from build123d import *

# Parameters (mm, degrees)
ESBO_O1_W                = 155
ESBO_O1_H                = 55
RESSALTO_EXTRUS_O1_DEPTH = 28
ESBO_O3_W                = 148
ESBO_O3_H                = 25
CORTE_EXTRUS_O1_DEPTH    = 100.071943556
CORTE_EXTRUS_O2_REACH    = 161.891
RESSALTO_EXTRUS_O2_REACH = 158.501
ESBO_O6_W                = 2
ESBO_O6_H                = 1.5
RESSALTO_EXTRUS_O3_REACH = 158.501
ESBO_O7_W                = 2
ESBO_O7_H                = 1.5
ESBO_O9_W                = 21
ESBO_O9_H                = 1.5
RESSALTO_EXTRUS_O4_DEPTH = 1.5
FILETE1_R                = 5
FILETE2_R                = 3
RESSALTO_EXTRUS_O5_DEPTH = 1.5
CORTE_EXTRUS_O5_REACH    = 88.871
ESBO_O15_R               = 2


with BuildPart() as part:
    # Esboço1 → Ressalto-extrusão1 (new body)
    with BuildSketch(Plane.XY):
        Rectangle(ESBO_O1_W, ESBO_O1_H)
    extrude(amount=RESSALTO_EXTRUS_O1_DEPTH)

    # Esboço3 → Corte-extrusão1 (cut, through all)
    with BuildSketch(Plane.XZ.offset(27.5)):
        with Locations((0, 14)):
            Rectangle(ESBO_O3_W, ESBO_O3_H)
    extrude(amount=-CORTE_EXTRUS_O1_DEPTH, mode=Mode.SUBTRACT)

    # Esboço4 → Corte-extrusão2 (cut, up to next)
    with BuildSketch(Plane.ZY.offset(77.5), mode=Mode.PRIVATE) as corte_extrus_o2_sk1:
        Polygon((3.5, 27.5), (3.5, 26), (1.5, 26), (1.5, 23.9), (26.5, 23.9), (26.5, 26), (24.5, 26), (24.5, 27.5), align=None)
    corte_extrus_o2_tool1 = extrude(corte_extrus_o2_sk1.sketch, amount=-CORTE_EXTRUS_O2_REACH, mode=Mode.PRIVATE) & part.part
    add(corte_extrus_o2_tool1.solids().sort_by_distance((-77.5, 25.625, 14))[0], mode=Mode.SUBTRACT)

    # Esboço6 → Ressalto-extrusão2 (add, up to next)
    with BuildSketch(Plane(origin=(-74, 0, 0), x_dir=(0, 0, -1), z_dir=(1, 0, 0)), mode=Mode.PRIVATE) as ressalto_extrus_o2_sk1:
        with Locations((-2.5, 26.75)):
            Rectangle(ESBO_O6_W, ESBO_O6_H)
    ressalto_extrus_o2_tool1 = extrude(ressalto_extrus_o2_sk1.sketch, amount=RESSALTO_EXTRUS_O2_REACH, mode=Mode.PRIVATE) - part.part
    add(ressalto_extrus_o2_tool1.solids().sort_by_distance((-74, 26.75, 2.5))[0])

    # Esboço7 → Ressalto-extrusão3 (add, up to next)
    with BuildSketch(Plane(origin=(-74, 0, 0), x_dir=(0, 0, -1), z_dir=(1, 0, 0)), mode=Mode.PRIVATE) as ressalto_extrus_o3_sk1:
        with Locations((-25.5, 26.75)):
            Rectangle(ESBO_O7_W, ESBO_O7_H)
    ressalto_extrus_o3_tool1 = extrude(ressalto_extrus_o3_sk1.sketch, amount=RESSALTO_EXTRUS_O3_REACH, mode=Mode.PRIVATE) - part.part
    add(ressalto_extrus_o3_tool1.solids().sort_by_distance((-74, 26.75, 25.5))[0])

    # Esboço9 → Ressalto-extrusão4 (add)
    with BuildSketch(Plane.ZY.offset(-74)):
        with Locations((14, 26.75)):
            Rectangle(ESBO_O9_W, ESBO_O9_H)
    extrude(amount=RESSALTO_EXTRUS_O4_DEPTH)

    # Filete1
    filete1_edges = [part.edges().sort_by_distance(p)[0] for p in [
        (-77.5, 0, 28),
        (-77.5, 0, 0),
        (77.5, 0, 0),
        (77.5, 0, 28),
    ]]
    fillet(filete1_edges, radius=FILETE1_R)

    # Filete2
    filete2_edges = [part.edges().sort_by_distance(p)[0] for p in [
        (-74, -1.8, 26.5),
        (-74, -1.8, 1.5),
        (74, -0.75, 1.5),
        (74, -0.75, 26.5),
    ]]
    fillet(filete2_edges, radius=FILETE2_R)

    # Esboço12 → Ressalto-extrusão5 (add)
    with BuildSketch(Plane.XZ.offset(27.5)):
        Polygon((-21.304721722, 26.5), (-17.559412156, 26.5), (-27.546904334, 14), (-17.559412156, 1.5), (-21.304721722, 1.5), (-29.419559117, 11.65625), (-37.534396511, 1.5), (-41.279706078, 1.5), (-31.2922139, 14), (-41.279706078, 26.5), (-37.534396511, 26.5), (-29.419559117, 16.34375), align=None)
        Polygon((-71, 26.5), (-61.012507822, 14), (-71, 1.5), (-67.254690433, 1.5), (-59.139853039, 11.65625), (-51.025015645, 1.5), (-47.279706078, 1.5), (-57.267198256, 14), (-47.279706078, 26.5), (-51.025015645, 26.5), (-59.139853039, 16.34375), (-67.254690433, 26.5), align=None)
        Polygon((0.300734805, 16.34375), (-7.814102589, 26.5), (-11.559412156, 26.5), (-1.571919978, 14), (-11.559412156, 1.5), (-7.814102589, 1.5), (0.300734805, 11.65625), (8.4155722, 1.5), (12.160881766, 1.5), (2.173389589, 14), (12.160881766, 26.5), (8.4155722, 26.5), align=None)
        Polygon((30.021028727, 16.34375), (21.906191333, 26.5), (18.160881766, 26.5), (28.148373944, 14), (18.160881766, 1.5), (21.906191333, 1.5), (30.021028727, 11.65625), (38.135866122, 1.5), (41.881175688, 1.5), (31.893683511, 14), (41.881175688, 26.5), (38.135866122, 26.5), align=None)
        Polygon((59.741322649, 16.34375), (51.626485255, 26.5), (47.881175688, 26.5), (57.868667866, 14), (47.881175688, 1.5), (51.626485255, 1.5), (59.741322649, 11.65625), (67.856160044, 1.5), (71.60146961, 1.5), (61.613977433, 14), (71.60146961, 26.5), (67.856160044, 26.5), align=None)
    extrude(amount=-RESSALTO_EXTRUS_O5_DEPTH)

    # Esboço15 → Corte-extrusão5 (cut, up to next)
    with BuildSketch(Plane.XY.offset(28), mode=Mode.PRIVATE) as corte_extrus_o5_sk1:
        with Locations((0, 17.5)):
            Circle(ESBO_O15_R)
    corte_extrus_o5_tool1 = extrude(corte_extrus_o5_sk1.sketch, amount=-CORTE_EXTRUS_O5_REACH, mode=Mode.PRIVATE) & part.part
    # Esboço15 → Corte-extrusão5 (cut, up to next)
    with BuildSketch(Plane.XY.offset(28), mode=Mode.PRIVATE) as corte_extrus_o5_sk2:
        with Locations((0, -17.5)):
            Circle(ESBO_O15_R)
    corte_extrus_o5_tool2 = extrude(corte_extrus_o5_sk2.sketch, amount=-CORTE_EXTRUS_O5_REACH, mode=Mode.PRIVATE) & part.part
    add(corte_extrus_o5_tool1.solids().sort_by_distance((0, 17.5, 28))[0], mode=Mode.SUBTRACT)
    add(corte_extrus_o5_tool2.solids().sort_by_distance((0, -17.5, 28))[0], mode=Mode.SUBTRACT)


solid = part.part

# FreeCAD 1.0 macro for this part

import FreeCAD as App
import Part
import Sketcher
from FreeCAD import Vector
Q = App.Units.Quantity


def edges_at(feature, points):
    """Names of the edges that pass closest to the given points."""
    edges = feature.Shape.Edges
    near = lambda p: min(range(len(edges)), key=lambda i: edges[i].distToShape(Part.Vertex(*p))[0])
    return sorted({f"Edge{near(p) + 1}" for p in points})


def add_polygon(sketch, points):
    """Adds a closed chain of lines whose ends are joined by coincident constraints."""
    first, n = sketch.GeometryCount, len(points)
    for a, b in zip(points, points[1:] + points[:1]):
        sketch.addGeometry(Part.LineSegment(App.Vector(*a, 0), App.Vector(*b, 0)), False)
    for i in range(n):
        sketch.addConstraint(Sketcher.Constraint("Coincident", first + i, 2, first + (i + 1) % n, 1))

doc = App.newDocument("Part")
body = doc.addObject("PartDesign::Body", "Body")

sketch1 = doc.addObject("Sketcher::SketchObject", "Sketch")
body.addObject(sketch1)
sketch1.AttachmentSupport = (doc.XY_Plane, [""])
sketch1.MapMode = "FlatFace"
add_polygon(sketch1, [(-78, 28), (-78, -28), (78, -28), (78, 28)])
sketch1.addConstraint(Sketcher.Constraint("Vertical", 0))
sketch1.addConstraint(Sketcher.Constraint("Horizontal", 1))
sketch1.addConstraint(Sketcher.Constraint("Vertical", 2))
sketch1.addConstraint(Sketcher.Constraint("Horizontal", 3))
sketch1.addConstraint(Sketcher.Constraint("Symmetric", 0, 2, 2, 2, -1, 1))
sketch1.addConstraint(Sketcher.Constraint("DistanceX", 1, 1, 1, 2, Q("155 mm")))
sketch1.addConstraint(Sketcher.Constraint("DistanceY", 0, 2, 0, 1, Q("55 mm")))
pad1 = doc.addObject("PartDesign::Pad", "Pad")
body.addObject(pad1)
pad1.Profile = sketch1
pad1.Length = 28

sketch2 = doc.addObject("Sketcher::SketchObject", "Sketch001")
body.addObject(sketch2)
sketch2.AttachmentSupport = (doc.XZ_Plane, [""])
sketch2.MapMode = "FlatFace"
sketch2.AttachmentOffset = App.Placement(Vector(0, 0, 27.5), App.Rotation())
add_polygon(sketch2, [(-74, 26), (-74, 2), (74, 2), (74, 26)])
sketch2.addConstraint(Sketcher.Constraint("Vertical", 0))
sketch2.addConstraint(Sketcher.Constraint("Horizontal", 1))
sketch2.addConstraint(Sketcher.Constraint("Vertical", 2))
sketch2.addConstraint(Sketcher.Constraint("Horizontal", 3))
sketch2.addConstraint(Sketcher.Constraint("DistanceX", 1, 1, 1, 2, Q("148 mm")))
sketch2.addConstraint(Sketcher.Constraint("DistanceY", 0, 2, 0, 1, Q("25 mm")))
sketch2.addConstraint(Sketcher.Constraint("DistanceX", 0, 2, -1, 1, Q("74 mm")))
sketch2.addConstraint(Sketcher.Constraint("DistanceY", -1, 1, 0, 2, Q("1.5 mm")))
pocket1 = doc.addObject("PartDesign::Pocket", "Pocket")
body.addObject(pocket1)
pocket1.Profile = sketch2
pocket1.Type = "ThroughAll"

sketch3 = doc.addObject("Sketcher::SketchObject", "Sketch002")
body.addObject(sketch3)
sketch3.AttachmentSupport = (doc.YZ_Plane, [""])
sketch3.MapMode = "FlatFace"
sketch3.AttachmentOffset = App.Placement(Vector(0, 0, -77.5), App.Rotation())
add_polygon(sketch3, [(27.5, 3.5), (26, 3.5), (26, 1.5), (23.9, 1.5), (23.9, 26.5), (26, 26.5), (26, 24.5), (27.5, 24.5)])
sketch3.addConstraint(Sketcher.Constraint("Horizontal", 0))
sketch3.addConstraint(Sketcher.Constraint("Vertical", 1))
sketch3.addConstraint(Sketcher.Constraint("Horizontal", 2))
sketch3.addConstraint(Sketcher.Constraint("Vertical", 3))
sketch3.addConstraint(Sketcher.Constraint("Horizontal", 4))
sketch3.addConstraint(Sketcher.Constraint("Vertical", 5))
sketch3.addConstraint(Sketcher.Constraint("Horizontal", 6))
sketch3.addConstraint(Sketcher.Constraint("Vertical", 7))
sketch3.addConstraint(Sketcher.Constraint("Vertical", 1, 2, 4, 2))
sketch3.addConstraint(Sketcher.Constraint("Equal", 1, 5))
sketch3.addConstraint(Sketcher.Constraint("DistanceY", 1, 2, 1, 1, Q("2 mm")))
sketch3.addConstraint(Sketcher.Constraint("DistanceY", 3, 1, 3, 2, Q("25 mm")))
sketch3.addConstraint(Sketcher.Constraint("DistanceX", 0, 2, 0, 1, Q("1.5 mm")))
sketch3.addConstraint(Sketcher.Constraint("DistanceX", 2, 2, 2, 1, Q("2.1 mm")))
sketch3.addConstraint(Sketcher.Constraint("DistanceX", -1, 1, 0, 2, Q("26 mm")))
sketch3.addConstraint(Sketcher.Constraint("DistanceY", -1, 1, 0, 2, Q("3.5 mm")))
pocket2 = doc.addObject("PartDesign::Pocket", "Pocket001")
body.addObject(pocket2)
pocket2.Profile = sketch3
pocket2.Type = "UpToFirst"
pocket2.Reversed = True

sketch4 = doc.addObject("Sketcher::SketchObject", "Sketch003")
body.addObject(sketch4)
sketch4.AttachmentSupport = (doc.YZ_Plane, [""])
sketch4.MapMode = "FlatFace"
sketch4.AttachmentOffset = App.Placement(Vector(0, 0, -74), App.Rotation())
add_polygon(sketch4, [(27.5, 3.5), (26, 3.5), (26, 1.5), (27.5, 1.5)])
sketch4.addConstraint(Sketcher.Constraint("Horizontal", 0))
sketch4.addConstraint(Sketcher.Constraint("Vertical", 1))
sketch4.addConstraint(Sketcher.Constraint("Horizontal", 2))
sketch4.addConstraint(Sketcher.Constraint("Vertical", 3))
sketch4.addConstraint(Sketcher.Constraint("DistanceY", 1, 2, 1, 1, Q("2 mm")))
sketch4.addConstraint(Sketcher.Constraint("DistanceX", 0, 2, 0, 1, Q("1.5 mm")))
sketch4.addConstraint(Sketcher.Constraint("DistanceX", -1, 1, 0, 2, Q("26 mm")))
sketch4.addConstraint(Sketcher.Constraint("DistanceY", -1, 1, 0, 2, Q("3.5 mm")))
pad2 = doc.addObject("PartDesign::Pad", "Pad001")
body.addObject(pad2)
pad2.Profile = sketch4
pad2.Type = "UpToFirst"

sketch5 = doc.addObject("Sketcher::SketchObject", "Sketch004")
body.addObject(sketch5)
sketch5.AttachmentSupport = (doc.YZ_Plane, [""])
sketch5.MapMode = "FlatFace"
sketch5.AttachmentOffset = App.Placement(Vector(0, 0, -74), App.Rotation())
add_polygon(sketch5, [(27.5, 26.5), (26, 26.5), (26, 24.5), (27.5, 24.5)])
sketch5.addConstraint(Sketcher.Constraint("Horizontal", 0))
sketch5.addConstraint(Sketcher.Constraint("Vertical", 1))
sketch5.addConstraint(Sketcher.Constraint("Horizontal", 2))
sketch5.addConstraint(Sketcher.Constraint("Vertical", 3))
sketch5.addConstraint(Sketcher.Constraint("DistanceY", 1, 2, 1, 1, Q("2 mm")))
sketch5.addConstraint(Sketcher.Constraint("DistanceX", 0, 2, 0, 1, Q("1.5 mm")))
sketch5.addConstraint(Sketcher.Constraint("DistanceX", -1, 1, 0, 2, Q("26 mm")))
sketch5.addConstraint(Sketcher.Constraint("DistanceY", -1, 1, 0, 2, Q("26.5 mm")))
pad3 = doc.addObject("PartDesign::Pad", "Pad002")
body.addObject(pad3)
pad3.Profile = sketch5
pad3.Type = "UpToFirst"

sketch6 = doc.addObject("Sketcher::SketchObject", "Sketch005")
body.addObject(sketch6)
sketch6.AttachmentSupport = (doc.YZ_Plane, [""])
sketch6.MapMode = "FlatFace"
sketch6.AttachmentOffset = App.Placement(Vector(0, 0, 74), App.Rotation())
add_polygon(sketch6, [(27.5, 3.5), (26, 3.5), (26, 24.5), (27.5, 24.5)])
sketch6.addConstraint(Sketcher.Constraint("Horizontal", 0))
sketch6.addConstraint(Sketcher.Constraint("Vertical", 1))
sketch6.addConstraint(Sketcher.Constraint("Horizontal", 2))
sketch6.addConstraint(Sketcher.Constraint("Vertical", 3))
sketch6.addConstraint(Sketcher.Constraint("DistanceY", 1, 1, 1, 2, Q("21 mm")))
sketch6.addConstraint(Sketcher.Constraint("DistanceX", 0, 2, 0, 1, Q("1.5 mm")))
sketch6.addConstraint(Sketcher.Constraint("DistanceX", -1, 1, 0, 2, Q("26 mm")))
sketch6.addConstraint(Sketcher.Constraint("DistanceY", -1, 1, 0, 2, Q("3.5 mm")))
pad4 = doc.addObject("PartDesign::Pad", "Pad003")
body.addObject(pad4)
pad4.Profile = sketch6
pad4.Length = 1.5
pad4.Reversed = True
doc.recompute()

fillet = doc.addObject("PartDesign::Fillet", "Fillet")
body.addObject(fillet)
fillet.Base = (pad4, edges_at(pad4, [
    (-77.5, 0, 28),
    (-77.5, 0, 0),
    (77.5, 0, 0),
    (77.5, 0, 28),
]))
fillet.Radius = 5
doc.recompute()

fillet2 = doc.addObject("PartDesign::Fillet", "Fillet001")
body.addObject(fillet2)
fillet2.Base = (fillet, edges_at(fillet, [
    (-74, -1.8, 26.5),
    (-74, -1.8, 1.5),
    (74, -0.75, 1.5),
    (74, -0.75, 26.5),
]))
fillet2.Radius = 3

sketch7 = doc.addObject("Sketcher::SketchObject", "Sketch006")
body.addObject(sketch7)
sketch7.AttachmentSupport = (doc.XZ_Plane, [""])
sketch7.MapMode = "FlatFace"
sketch7.AttachmentOffset = App.Placement(Vector(0, 0, 27.5), App.Rotation())
add_polygon(sketch7, [(-17.6, 26.5), (-21.3, 26.5), (-29.4, 16.3), (-37.5, 26.5), (-41.3, 26.5), (-31.3, 14), (-41.3, 1.5), (-37.5, 1.5), (-29.4, 11.7), (-21.3, 1.5), (-17.6, 1.5), (-27.5, 14)])
add_polygon(sketch7, [(-71, 26.5), (-61, 14), (-71, 1.5), (-67.3, 1.5), (-59.1, 11.7), (-51, 1.5), (-47.3, 1.5), (-57.3, 14), (-47.3, 26.5), (-51, 26.5), (-59.1, 16.3), (-67.3, 26.5)])
add_polygon(sketch7, [(0.3, 16.3), (-7.8, 26.5), (-11.6, 26.5), (-1.6, 14), (-11.6, 1.5), (-7.8, 1.5), (0.3, 11.7), (8.4, 1.5), (12.2, 1.5), (2.2, 14), (12.2, 26.5), (8.4, 26.5)])
add_polygon(sketch7, [(30, 16.3), (21.9, 26.5), (18.2, 26.5), (28.1, 14), (18.2, 1.5), (21.9, 1.5), (30, 11.7), (38.1, 1.5), (41.9, 1.5), (31.9, 14), (41.9, 26.5), (38.1, 26.5)])
add_polygon(sketch7, [(59.7, 16.3), (51.6, 26.5), (47.9, 26.5), (57.9, 14), (47.9, 1.5), (51.6, 1.5), (59.7, 11.7), (67.9, 1.5), (71.6, 1.5), (61.6, 14), (71.6, 26.5), (67.9, 26.5)])
sketch7.addConstraint(Sketcher.Constraint("Horizontal", 0))
sketch7.addConstraint(Sketcher.Constraint("Horizontal", 3))
sketch7.addConstraint(Sketcher.Constraint("Horizontal", 6))
sketch7.addConstraint(Sketcher.Constraint("Horizontal", 9))
sketch7.addConstraint(Sketcher.Constraint("Horizontal", 14))
sketch7.addConstraint(Sketcher.Constraint("Horizontal", 17))
sketch7.addConstraint(Sketcher.Constraint("Horizontal", 20))
sketch7.addConstraint(Sketcher.Constraint("Horizontal", 23))
sketch7.addConstraint(Sketcher.Constraint("Horizontal", 25))
sketch7.addConstraint(Sketcher.Constraint("Horizontal", 28))
sketch7.addConstraint(Sketcher.Constraint("Horizontal", 31))
sketch7.addConstraint(Sketcher.Constraint("Horizontal", 34))
sketch7.addConstraint(Sketcher.Constraint("Horizontal", 37))
sketch7.addConstraint(Sketcher.Constraint("Horizontal", 40))
sketch7.addConstraint(Sketcher.Constraint("Horizontal", 43))
sketch7.addConstraint(Sketcher.Constraint("Horizontal", 46))
sketch7.addConstraint(Sketcher.Constraint("Horizontal", 49))
sketch7.addConstraint(Sketcher.Constraint("Horizontal", 52))
sketch7.addConstraint(Sketcher.Constraint("Horizontal", 55))
sketch7.addConstraint(Sketcher.Constraint("Horizontal", 58))
sketch7.addConstraint(Sketcher.Constraint("Parallel", 2, 4))
sketch7.addConstraint(Sketcher.Constraint("Parallel", 1, 5))
sketch7.addConstraint(Sketcher.Constraint("Parallel", 5, 7))
sketch7.addConstraint(Sketcher.Constraint("Parallel", 4, 8))
sketch7.addConstraint(Sketcher.Constraint("Parallel", 8, 10))
sketch7.addConstraint(Sketcher.Constraint("Parallel", 7, 11))
sketch7.addConstraint(Sketcher.Constraint("Parallel", 10, 12))
sketch7.addConstraint(Sketcher.Constraint("Parallel", 11, 13))
sketch7.addConstraint(Sketcher.Constraint("Parallel", 13, 15))
sketch7.addConstraint(Sketcher.Constraint("Parallel", 12, 16))
sketch7.addConstraint(Sketcher.Constraint("Parallel", 16, 18))
sketch7.addConstraint(Sketcher.Constraint("Parallel", 15, 19))
sketch7.addConstraint(Sketcher.Constraint("Parallel", 19, 21))
sketch7.addConstraint(Sketcher.Constraint("Parallel", 18, 22))
sketch7.addConstraint(Sketcher.Constraint("Parallel", 22, 24))
sketch7.addConstraint(Sketcher.Constraint("Parallel", 24, 26))
sketch7.addConstraint(Sketcher.Constraint("Parallel", 21, 27))
sketch7.addConstraint(Sketcher.Constraint("Parallel", 27, 29))
sketch7.addConstraint(Sketcher.Constraint("Parallel", 26, 30))
sketch7.addConstraint(Sketcher.Constraint("Parallel", 30, 32))
sketch7.addConstraint(Sketcher.Constraint("Parallel", 29, 33))
sketch7.addConstraint(Sketcher.Constraint("Parallel", 33, 35))
sketch7.addConstraint(Sketcher.Constraint("Parallel", 32, 36))
sketch7.addConstraint(Sketcher.Constraint("Parallel", 36, 38))
sketch7.addConstraint(Sketcher.Constraint("Parallel", 35, 39))
sketch7.addConstraint(Sketcher.Constraint("Parallel", 39, 41))
sketch7.addConstraint(Sketcher.Constraint("Parallel", 38, 42))
sketch7.addConstraint(Sketcher.Constraint("Parallel", 42, 44))
sketch7.addConstraint(Sketcher.Constraint("Parallel", 41, 45))
sketch7.addConstraint(Sketcher.Constraint("Parallel", 45, 47))
sketch7.addConstraint(Sketcher.Constraint("Parallel", 44, 48))
sketch7.addConstraint(Sketcher.Constraint("Parallel", 48, 50))
sketch7.addConstraint(Sketcher.Constraint("Parallel", 47, 51))
sketch7.addConstraint(Sketcher.Constraint("Parallel", 51, 53))
sketch7.addConstraint(Sketcher.Constraint("Parallel", 50, 54))
sketch7.addConstraint(Sketcher.Constraint("Parallel", 54, 56))
sketch7.addConstraint(Sketcher.Constraint("Parallel", 53, 57))
sketch7.addConstraint(Sketcher.Constraint("Parallel", 57, 59))
sketch7.addConstraint(Sketcher.Constraint("Horizontal", 0, 2, 2, 2))
sketch7.addConstraint(Sketcher.Constraint("Horizontal", 6, 2, 8, 2))
sketch7.addConstraint(Sketcher.Constraint("Horizontal", 4, 2, 10, 2))
sketch7.addConstraint(Sketcher.Constraint("Horizontal", 10, 2, 12, 2))
sketch7.addConstraint(Sketcher.Constraint("Horizontal", 9, 2, 13, 2))
sketch7.addConstraint(Sketcher.Constraint("Horizontal", 7, 2, 15, 2))
sketch7.addConstraint(Sketcher.Constraint("Horizontal", 14, 2, 16, 2))
sketch7.addConstraint(Sketcher.Constraint("Horizontal", 12, 2, 18, 2))
sketch7.addConstraint(Sketcher.Constraint("Horizontal", 11, 2, 19, 2))
sketch7.addConstraint(Sketcher.Constraint("Horizontal", 1, 2, 21, 2))
sketch7.addConstraint(Sketcher.Constraint("Horizontal", 20, 2, 22, 2))
sketch7.addConstraint(Sketcher.Constraint("Horizontal", 23, 2, 24, 2))
sketch7.addConstraint(Sketcher.Constraint("Horizontal", 18, 2, 26, 2))
sketch7.addConstraint(Sketcher.Constraint("Horizontal", 17, 2, 27, 2))
sketch7.addConstraint(Sketcher.Constraint("Horizontal", 15, 2, 29, 2))
sketch7.addConstraint(Sketcher.Constraint("Horizontal", 28, 2, 30, 2))
sketch7.addConstraint(Sketcher.Constraint("Horizontal", 26, 2, 32, 2))
sketch7.addConstraint(Sketcher.Constraint("Horizontal", 25, 2, 33, 2))
sketch7.addConstraint(Sketcher.Constraint("Horizontal", 21, 2, 35, 2))
sketch7.addConstraint(Sketcher.Constraint("Horizontal", 34, 2, 36, 2))
sketch7.addConstraint(Sketcher.Constraint("Horizontal", 32, 2, 38, 2))
sketch7.addConstraint(Sketcher.Constraint("Horizontal", 31, 2, 39, 2))
sketch7.addConstraint(Sketcher.Constraint("Horizontal", 29, 2, 41, 2))
sketch7.addConstraint(Sketcher.Constraint("Horizontal", 40, 2, 42, 2))
sketch7.addConstraint(Sketcher.Constraint("Horizontal", 38, 2, 44, 2))
sketch7.addConstraint(Sketcher.Constraint("Horizontal", 37, 2, 45, 2))
sketch7.addConstraint(Sketcher.Constraint("Horizontal", 35, 2, 47, 2))
sketch7.addConstraint(Sketcher.Constraint("Horizontal", 46, 2, 48, 2))
sketch7.addConstraint(Sketcher.Constraint("Horizontal", 44, 2, 50, 2))
sketch7.addConstraint(Sketcher.Constraint("Horizontal", 43, 2, 51, 2))
sketch7.addConstraint(Sketcher.Constraint("Horizontal", 41, 2, 53, 2))
sketch7.addConstraint(Sketcher.Constraint("Horizontal", 52, 2, 54, 2))
sketch7.addConstraint(Sketcher.Constraint("Horizontal", 50, 2, 56, 2))
sketch7.addConstraint(Sketcher.Constraint("Horizontal", 49, 2, 57, 2))
sketch7.addConstraint(Sketcher.Constraint("Horizontal", 47, 2, 59, 2))
sketch7.addConstraint(Sketcher.Constraint("Vertical", 3, 2, 5, 2))
sketch7.addConstraint(Sketcher.Constraint("Vertical", 2, 2, 6, 2))
sketch7.addConstraint(Sketcher.Constraint("Vertical", 1, 2, 7, 2))
sketch7.addConstraint(Sketcher.Constraint("Vertical", 0, 2, 8, 2))
sketch7.addConstraint(Sketcher.Constraint("Vertical", 16, 2, 20, 2))
sketch7.addConstraint(Sketcher.Constraint("Vertical", 24, 2, 28, 2))
sketch7.addConstraint(Sketcher.Constraint("Vertical", 36, 2, 40, 2))
sketch7.addConstraint(Sketcher.Constraint("Vertical", 48, 2, 52, 2))
sketch7.addConstraint(Sketcher.Constraint("Equal", 0, 3))
sketch7.addConstraint(Sketcher.Constraint("Equal", 9, 14))
sketch7.addConstraint(Sketcher.Constraint("Equal", 14, 17))
sketch7.addConstraint(Sketcher.Constraint("Equal", 23, 25))
sketch7.addConstraint(Sketcher.Constraint("Equal", 28, 31))
sketch7.addConstraint(Sketcher.Constraint("Equal", 34, 37))
sketch7.addConstraint(Sketcher.Constraint("Equal", 40, 43))
sketch7.addConstraint(Sketcher.Constraint("Equal", 46, 49))
sketch7.addConstraint(Sketcher.Constraint("Equal", 52, 55))
sketch7.addConstraint(Sketcher.Constraint("Distance", 1, Q("13 mm")))
sketch7.addConstraint(Sketcher.Constraint("Distance", 4, Q("16 mm")))
sketch7.addConstraint(Sketcher.Constraint("DistanceY", -1, 1, 4, 2, Q("14 mm")))
sketch7.addConstraint(Sketcher.Constraint("DistanceX", 13, 2, -1, 1, Q("71 mm")))
sketch7.addConstraint(Sketcher.Constraint("DistanceY", 5, 2, 3, 2, Q("25 mm")))
sketch7.addConstraint(Sketcher.Constraint("DistanceX", 17, 2, 5, 2, Q("6 mm")))
sketch7.addConstraint(Sketcher.Constraint("DistanceX", 11, 2, 25, 2, Q("6 mm")))
sketch7.addConstraint(Sketcher.Constraint("DistanceX", 33, 2, 37, 2, Q("6 mm")))
sketch7.addConstraint(Sketcher.Constraint("DistanceX", 45, 2, 49, 2, Q("6 mm")))
sketch7.addConstraint(Sketcher.Constraint("DistanceX", 0, 2, 0, 1, Q("3.74531 mm")))
pad5 = doc.addObject("PartDesign::Pad", "Pad004")
body.addObject(pad5)
pad5.Profile = sketch7
pad5.Length = 1.5
pad5.Reversed = True

sketch8 = doc.addObject("Sketcher::SketchObject", "Sketch007")
body.addObject(sketch8)
sketch8.AttachmentSupport = (doc.XY_Plane, [""])
sketch8.MapMode = "FlatFace"
sketch8.AttachmentOffset = App.Placement(Vector(0, 0, 28), App.Rotation())
sketch8.addGeometry(Part.Circle(Vector(0, 17.5, 0), Vector(0, 0, 1), 2), False)
sketch8.addConstraint(Sketcher.Constraint("PointOnObject", 0, 3, -2))
sketch8.addConstraint(Sketcher.Constraint("Diameter", 0, Q("4 mm")))
sketch8.addConstraint(Sketcher.Constraint("DistanceY", -1, 1, 0, 3, Q("17.5 mm")))
pocket3 = doc.addObject("PartDesign::Pocket", "Pocket002")
body.addObject(pocket3)
pocket3.Profile = sketch8
pocket3.Type = "UpToFirst"

sketch9 = doc.addObject("Sketcher::SketchObject", "Sketch008")
body.addObject(sketch9)
sketch9.AttachmentSupport = (doc.XY_Plane, [""])
sketch9.MapMode = "FlatFace"
sketch9.AttachmentOffset = App.Placement(Vector(0, 0, 28), App.Rotation())
sketch9.addGeometry(Part.Circle(Vector(0, -17.5, 0), Vector(0, 0, 1), 2), False)
sketch9.addConstraint(Sketcher.Constraint("PointOnObject", 0, 3, -2))
sketch9.addConstraint(Sketcher.Constraint("Diameter", 0, Q("4 mm")))
sketch9.addConstraint(Sketcher.Constraint("DistanceY", 0, 3, -1, 1, Q("17.5 mm")))
pocket4 = doc.addObject("PartDesign::Pocket", "Pocket003")
body.addObject(pocket4)
pocket4.Profile = sketch9
pocket4.Type = "UpToFirst"

doc.recompute()
